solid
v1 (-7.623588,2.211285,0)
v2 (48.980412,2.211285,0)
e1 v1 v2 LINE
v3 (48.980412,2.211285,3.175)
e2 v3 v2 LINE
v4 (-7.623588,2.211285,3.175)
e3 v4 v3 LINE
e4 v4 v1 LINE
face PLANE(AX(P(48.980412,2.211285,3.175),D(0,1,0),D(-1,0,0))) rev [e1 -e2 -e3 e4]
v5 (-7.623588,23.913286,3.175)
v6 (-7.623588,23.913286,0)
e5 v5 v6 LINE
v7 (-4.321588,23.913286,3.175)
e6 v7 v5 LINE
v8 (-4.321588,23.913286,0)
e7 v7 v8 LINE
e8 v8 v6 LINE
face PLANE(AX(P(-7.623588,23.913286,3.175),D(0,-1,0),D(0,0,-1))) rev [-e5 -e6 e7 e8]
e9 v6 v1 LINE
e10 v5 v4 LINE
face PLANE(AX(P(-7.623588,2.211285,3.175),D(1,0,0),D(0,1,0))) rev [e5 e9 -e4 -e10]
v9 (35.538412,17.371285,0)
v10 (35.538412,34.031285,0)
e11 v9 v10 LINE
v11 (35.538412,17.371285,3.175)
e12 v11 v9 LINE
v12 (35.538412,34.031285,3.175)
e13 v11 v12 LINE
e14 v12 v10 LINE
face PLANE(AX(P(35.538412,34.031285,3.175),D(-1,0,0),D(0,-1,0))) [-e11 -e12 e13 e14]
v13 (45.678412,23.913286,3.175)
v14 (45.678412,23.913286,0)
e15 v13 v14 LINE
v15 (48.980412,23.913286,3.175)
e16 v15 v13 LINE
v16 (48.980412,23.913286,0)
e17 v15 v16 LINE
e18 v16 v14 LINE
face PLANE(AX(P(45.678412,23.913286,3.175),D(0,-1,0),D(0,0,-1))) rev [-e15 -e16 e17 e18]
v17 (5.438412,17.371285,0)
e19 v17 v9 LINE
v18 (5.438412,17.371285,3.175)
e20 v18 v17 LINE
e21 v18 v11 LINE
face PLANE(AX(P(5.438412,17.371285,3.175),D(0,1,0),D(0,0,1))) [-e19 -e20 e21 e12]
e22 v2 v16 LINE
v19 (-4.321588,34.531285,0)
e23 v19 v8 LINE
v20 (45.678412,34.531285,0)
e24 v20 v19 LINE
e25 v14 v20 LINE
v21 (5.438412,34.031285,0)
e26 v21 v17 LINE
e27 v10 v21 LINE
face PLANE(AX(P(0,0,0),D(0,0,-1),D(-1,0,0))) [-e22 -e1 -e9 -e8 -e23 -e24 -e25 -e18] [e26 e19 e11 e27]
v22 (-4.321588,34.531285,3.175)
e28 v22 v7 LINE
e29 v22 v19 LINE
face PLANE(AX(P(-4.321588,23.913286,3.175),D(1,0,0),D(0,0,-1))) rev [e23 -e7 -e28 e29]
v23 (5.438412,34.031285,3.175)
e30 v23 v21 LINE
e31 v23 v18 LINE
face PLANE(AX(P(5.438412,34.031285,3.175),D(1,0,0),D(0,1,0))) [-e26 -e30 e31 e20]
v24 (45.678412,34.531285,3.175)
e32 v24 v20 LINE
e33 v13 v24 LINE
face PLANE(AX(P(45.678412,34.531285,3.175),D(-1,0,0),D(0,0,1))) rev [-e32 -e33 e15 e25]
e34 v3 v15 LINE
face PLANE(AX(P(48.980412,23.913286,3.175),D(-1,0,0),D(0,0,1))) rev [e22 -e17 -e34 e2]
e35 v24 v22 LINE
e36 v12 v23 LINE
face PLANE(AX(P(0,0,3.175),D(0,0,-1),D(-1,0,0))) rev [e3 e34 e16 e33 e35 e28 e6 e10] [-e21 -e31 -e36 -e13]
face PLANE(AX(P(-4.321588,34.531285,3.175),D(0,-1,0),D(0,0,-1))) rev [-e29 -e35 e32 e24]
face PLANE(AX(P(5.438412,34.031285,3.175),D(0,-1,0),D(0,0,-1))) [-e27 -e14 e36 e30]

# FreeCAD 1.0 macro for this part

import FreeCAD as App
import Part
import Sketcher


def add_polygon(sketch, points):
    """Adds a closed chain of lines whose ends are joined by coincident constraints."""
    first, n = sketch.GeometryCount, len(points)
    for a, b in zip(points, points[1:] + points[:1]):
        sketch.addGeometry(Part.LineSegment(App.Vector(*a, 0), App.Vector(*b, 0)), False)
    for i in range(n):
        sketch.addConstraint(Sketcher.Constraint("Coincident", first + i, 2, first + (i + 1) % n, 1))

doc = App.newDocument("Part")
params = doc.addObject("Spreadsheet::Sheet", "Params")
for row, (alias, value) in enumerate([
    ("sketch1_width", "50 mm"),
    ("sketch1_width2", "30.1 mm"),
    ("sketch1_height", "16.66 mm"),
    ("pad1_length", "3.175 mm"),
], start=1):
    params.set(f"A{row}", alias)
    params.set(f"B{row}", "=" + value)
    params.setAlias(f"B{row}", alias)

body = doc.addObject("PartDesign::Body", "Body")

# Sketch on XY plane
sketch1 = doc.addObject("Sketcher::SketchObject", "Sketch")
body.addObject(sketch1)
sketch1.AttachmentSupport = (doc.XY_Plane, [""])
sketch1.MapMode = "FlatFace"
add_polygon(sketch1, [(-7.623588, 23.913286), (-7.623588, 2.211285), (48.980412, 2.211285), (48.980412, 23.913286), (45.678412, 23.913286), (45.678412, 34.531285), (-4.321588, 34.531285), (-4.321588, 23.913286)])  # lines 0-7
add_polygon(sketch1, [(5.438412, 17.371285), (5.438412, 34.031285), (35.538412, 34.031285), (35.538412, 17.371285)])  # lines 8-11
sketch1.addConstraint([
    Sketcher.Constraint("Vertical", 0),
    Sketcher.Constraint("Horizontal", 1),
    Sketcher.Constraint("Vertical", 2),
    Sketcher.Constraint("Horizontal", 3),
    Sketcher.Constraint("Vertical", 4),
    Sketcher.Constraint("Horizontal", 5),
    Sketcher.Constraint("Vertical", 6),
    Sketcher.Constraint("Horizontal", 7),
    Sketcher.Constraint("Vertical", 8),
    Sketcher.Constraint("Horizontal", 9),
    Sketcher.Constraint("Vertical", 10),
    Sketcher.Constraint("Horizontal", 11),
    Sketcher.Constraint("Horizontal", 3, 2, 6, 2),
    Sketcher.Constraint("Equal", 3, 7),
    Sketcher.Constraint("DistanceX", 5, 2, 5, 1, 50.0),
    Sketcher.Constraint("DistanceX", 9, 1, 9, 2, 30.1),
    Sketcher.Constraint("DistanceY", 8, 1, 8, 2, 16.66),
    Sketcher.Constraint("DistanceY", 8, 2, 5, 2, 0.5),
    Sketcher.Constraint("DistanceX", 1, 1, 1, 2, 56.604),
    Sketcher.Constraint("DistanceY", 0, 2, 0, 1, 21.702),
    Sketcher.Constraint("DistanceY", 4, 1, 4, 2, 10.618),
    Sketcher.Constraint("DistanceX", 5, 2, 8, 2, 9.76),
    Sketcher.Constraint("DistanceX", 0, 2, -1, 1, 7.623588),
    Sketcher.Constraint("DistanceY", -1, 1, 0, 2, 2.211285),
])
sketch1.setExpression("Constraints[26]", "Params.sketch1_width")
sketch1.setExpression("Constraints[27]", "Params.sketch1_width2")
sketch1.setExpression("Constraints[28]", "Params.sketch1_height")
pad1 = doc.addObject("PartDesign::Pad", "Pad")
body.addObject(pad1)
pad1.Profile = sketch1
pad1.setExpression("Length", "Params.pad1_length")

doc.recompute()
